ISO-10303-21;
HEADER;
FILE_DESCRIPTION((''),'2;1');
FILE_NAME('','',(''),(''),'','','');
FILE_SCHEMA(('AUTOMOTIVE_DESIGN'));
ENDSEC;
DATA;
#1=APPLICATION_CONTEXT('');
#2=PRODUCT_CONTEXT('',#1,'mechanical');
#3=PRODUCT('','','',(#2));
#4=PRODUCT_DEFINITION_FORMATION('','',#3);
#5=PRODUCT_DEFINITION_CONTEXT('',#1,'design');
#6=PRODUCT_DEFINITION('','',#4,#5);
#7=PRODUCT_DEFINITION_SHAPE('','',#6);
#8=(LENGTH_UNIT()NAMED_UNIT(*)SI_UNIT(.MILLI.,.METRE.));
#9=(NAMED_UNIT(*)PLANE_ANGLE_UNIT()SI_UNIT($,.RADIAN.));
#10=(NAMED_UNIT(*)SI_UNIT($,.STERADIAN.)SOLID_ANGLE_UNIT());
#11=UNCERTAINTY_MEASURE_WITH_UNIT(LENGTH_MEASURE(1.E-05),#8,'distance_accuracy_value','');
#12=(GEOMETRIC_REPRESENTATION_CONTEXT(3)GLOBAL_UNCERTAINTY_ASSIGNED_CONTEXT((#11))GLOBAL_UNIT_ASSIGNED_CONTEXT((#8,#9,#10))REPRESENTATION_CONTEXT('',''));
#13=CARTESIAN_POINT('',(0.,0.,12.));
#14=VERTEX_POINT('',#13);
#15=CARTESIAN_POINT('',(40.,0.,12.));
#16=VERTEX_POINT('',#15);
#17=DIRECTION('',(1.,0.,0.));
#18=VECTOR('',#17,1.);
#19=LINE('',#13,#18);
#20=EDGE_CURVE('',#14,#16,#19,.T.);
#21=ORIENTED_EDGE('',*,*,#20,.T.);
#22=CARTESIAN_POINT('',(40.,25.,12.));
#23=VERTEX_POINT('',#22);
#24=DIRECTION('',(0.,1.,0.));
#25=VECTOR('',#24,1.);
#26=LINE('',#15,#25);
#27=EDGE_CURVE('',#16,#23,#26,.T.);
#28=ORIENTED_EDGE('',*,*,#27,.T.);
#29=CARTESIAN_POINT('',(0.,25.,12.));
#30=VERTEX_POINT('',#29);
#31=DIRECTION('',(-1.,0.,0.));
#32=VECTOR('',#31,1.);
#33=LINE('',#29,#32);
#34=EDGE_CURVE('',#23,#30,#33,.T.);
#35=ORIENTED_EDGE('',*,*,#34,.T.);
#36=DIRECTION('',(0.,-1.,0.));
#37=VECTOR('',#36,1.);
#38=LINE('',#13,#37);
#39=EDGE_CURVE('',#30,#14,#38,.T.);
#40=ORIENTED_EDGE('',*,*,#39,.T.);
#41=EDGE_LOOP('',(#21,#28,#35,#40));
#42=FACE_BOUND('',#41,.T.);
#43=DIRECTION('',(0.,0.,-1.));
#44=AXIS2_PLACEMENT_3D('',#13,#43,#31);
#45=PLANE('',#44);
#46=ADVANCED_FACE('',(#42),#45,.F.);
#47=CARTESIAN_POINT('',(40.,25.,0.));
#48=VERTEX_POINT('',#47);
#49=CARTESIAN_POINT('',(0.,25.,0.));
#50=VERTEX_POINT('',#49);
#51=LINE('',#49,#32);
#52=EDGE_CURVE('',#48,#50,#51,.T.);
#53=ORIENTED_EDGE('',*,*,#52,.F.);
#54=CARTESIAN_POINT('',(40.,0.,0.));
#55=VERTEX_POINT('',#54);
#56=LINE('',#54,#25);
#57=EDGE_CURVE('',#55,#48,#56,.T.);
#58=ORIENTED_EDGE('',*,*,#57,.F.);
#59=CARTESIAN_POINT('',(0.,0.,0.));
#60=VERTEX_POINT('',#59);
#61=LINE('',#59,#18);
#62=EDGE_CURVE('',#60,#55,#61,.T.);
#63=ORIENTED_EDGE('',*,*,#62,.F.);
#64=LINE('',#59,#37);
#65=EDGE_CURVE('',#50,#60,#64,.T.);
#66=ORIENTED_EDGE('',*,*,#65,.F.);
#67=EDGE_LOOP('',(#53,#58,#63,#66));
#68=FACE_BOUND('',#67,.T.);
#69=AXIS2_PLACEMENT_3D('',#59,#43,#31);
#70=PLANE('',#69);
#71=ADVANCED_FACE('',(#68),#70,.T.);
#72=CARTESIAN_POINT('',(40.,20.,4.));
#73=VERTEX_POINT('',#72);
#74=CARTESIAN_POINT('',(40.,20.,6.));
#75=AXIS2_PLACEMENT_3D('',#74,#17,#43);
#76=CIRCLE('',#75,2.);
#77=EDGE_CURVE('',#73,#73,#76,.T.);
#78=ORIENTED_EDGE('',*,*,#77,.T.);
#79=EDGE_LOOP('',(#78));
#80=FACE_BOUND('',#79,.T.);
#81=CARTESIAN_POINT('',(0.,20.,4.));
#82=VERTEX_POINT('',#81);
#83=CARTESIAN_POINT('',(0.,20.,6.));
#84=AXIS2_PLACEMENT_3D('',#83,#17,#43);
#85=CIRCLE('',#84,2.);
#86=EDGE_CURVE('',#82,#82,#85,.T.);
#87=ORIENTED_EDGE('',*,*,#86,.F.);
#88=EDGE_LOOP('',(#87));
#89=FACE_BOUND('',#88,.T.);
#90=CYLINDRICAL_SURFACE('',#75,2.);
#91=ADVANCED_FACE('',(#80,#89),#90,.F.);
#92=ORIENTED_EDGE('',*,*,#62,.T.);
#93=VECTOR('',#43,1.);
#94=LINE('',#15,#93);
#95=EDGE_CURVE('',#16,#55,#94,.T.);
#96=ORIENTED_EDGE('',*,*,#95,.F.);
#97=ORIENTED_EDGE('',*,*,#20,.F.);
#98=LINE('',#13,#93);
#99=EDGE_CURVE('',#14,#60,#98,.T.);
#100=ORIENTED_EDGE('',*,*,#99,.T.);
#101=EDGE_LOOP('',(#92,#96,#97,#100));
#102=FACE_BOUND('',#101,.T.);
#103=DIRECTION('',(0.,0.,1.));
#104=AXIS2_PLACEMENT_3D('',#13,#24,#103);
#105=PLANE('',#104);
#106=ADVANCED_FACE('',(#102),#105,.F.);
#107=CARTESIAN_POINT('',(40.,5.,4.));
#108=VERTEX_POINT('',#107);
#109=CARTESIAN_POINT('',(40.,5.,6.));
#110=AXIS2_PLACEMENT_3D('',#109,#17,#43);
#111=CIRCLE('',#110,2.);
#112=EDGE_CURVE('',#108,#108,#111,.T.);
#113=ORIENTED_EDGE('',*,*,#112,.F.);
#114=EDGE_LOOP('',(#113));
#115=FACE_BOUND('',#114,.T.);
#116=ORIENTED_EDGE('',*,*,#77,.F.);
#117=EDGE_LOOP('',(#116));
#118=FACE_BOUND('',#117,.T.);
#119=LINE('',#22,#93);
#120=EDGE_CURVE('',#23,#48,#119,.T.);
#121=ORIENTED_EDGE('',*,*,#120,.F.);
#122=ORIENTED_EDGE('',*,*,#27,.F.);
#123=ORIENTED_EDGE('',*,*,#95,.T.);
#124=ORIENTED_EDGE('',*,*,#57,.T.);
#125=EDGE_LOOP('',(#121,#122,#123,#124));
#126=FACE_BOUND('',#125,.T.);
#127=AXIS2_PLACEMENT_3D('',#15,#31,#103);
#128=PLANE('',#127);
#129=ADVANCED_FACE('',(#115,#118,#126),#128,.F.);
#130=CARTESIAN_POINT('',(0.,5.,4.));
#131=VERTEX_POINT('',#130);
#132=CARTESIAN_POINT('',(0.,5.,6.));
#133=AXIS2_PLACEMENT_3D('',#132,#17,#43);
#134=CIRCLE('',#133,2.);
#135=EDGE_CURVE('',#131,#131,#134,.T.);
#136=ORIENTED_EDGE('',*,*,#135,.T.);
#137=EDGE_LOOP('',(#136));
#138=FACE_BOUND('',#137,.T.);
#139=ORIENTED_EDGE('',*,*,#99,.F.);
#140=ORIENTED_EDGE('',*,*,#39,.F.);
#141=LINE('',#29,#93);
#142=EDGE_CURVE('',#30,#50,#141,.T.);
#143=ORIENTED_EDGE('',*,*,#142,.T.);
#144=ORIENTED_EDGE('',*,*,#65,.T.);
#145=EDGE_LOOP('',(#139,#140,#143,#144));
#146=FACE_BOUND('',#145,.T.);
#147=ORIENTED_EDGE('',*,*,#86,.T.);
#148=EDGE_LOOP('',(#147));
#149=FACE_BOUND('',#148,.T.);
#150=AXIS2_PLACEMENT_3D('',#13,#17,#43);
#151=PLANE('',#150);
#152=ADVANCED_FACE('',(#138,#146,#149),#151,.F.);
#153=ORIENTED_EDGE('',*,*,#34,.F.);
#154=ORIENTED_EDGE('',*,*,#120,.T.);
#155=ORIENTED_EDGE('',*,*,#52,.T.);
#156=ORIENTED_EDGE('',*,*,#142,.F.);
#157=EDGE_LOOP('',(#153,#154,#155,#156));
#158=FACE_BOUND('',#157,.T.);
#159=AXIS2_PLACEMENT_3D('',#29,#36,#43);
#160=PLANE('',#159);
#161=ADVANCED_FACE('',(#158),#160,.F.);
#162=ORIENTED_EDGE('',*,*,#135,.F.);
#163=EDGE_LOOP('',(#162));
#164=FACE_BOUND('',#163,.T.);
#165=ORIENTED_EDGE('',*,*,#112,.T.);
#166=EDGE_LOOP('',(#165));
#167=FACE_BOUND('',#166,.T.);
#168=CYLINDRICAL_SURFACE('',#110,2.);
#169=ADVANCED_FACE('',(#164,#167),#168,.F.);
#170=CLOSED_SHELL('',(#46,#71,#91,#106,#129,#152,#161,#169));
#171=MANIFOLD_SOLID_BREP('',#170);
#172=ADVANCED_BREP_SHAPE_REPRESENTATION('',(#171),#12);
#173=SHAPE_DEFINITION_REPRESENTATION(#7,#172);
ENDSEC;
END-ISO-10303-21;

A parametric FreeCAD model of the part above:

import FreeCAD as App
import Part
import Sketcher

doc = App.newDocument("Part")
params = doc.addObject("Spreadsheet::Sheet", "Params")
for row, (alias, value) in enumerate([
    ("sketch1_width", "40 mm"),
    ("sketch1_height", "25 mm"),
    ("pad1_length", "12 mm"),
    ("sketch2_diameter", "4 mm"),
    ("hole_diameter", "4 mm"),
    ("hole_depth", "40 mm"),
], start=1):
    params.set(f"A{row}", alias)
    params.set(f"B{row}", "=" + value)
    params.setAlias(f"B{row}", alias)

body = doc.addObject("PartDesign::Body", "Body")

# Sketch on XY plane
sketch1 = body.newObject("Sketcher::SketchObject", "Sketch")
sketch1.AttachmentSupport = (doc.getObject("XY_Plane"), [""])
sketch1.MapMode = "FlatFace"
sketch1.addGeometry([
    Part.LineSegment(App.Vector(0, 25, 0), App.Vector(0, 0, 0)),
    Part.LineSegment(App.Vector(0, 0, 0), App.Vector(40, 0, 0)),
    Part.LineSegment(App.Vector(40, 0, 0), App.Vector(40, 25, 0)),
    Part.LineSegment(App.Vector(40, 25, 0), App.Vector(0, 25, 0)),
], False)
sketch1.addConstraint([
    Sketcher.Constraint("Coincident", 0, 2, 1, 1),
    Sketcher.Constraint("Coincident", 1, 2, 2, 1),
    Sketcher.Constraint("Coincident", 2, 2, 3, 1),
    Sketcher.Constraint("Coincident", 3, 2, 0, 1),
    Sketcher.Constraint("Vertical", 0),
    Sketcher.Constraint("Horizontal", 1),
    Sketcher.Constraint("Vertical", 2),
    Sketcher.Constraint("Horizontal", 3),
    Sketcher.Constraint("Coincident", 0, 2, -1, 1),
    Sketcher.Constraint("DistanceX", 1, 1, 1, 2, 40.0),
    Sketcher.Constraint("DistanceY", 0, 2, 0, 1, 25.0),
])
sketch1.setExpression("Constraints[9]", "Params.sketch1_width")
sketch1.setExpression("Constraints[10]", "Params.sketch1_height")
pad1 = body.newObject("PartDesign::Pad", "Pad")
pad1.Profile = sketch1
pad1.setExpression("Length", "Params.pad1_length")

# Sketch on YZ plane
sketch2 = body.newObject("Sketcher::SketchObject", "Sketch001")
sketch2.AttachmentSupport = (doc.getObject("YZ_Plane"), [""])
sketch2.MapMode = "FlatFace"
sketch2.AttachmentOffset = App.Placement(App.Vector(0, 0, 40), App.Rotation())
sketch2.addGeometry([
    Part.Circle(App.Vector(20, 6, 0), App.Vector(0, 0, 1), 2),
    Part.Circle(App.Vector(5, 6, 0), App.Vector(0, 0, 1), 2),
], False)
sketch2.addConstraint([
    Sketcher.Constraint("Equal", 0, 1),
    Sketcher.Constraint("Horizontal", 0, 3, 1, 3),
    Sketcher.Constraint("Diameter", 0, 4.0),
    Sketcher.Constraint("DistanceX", -1, 1, 0, 3, 20.0),
    Sketcher.Constraint("DistanceY", -1, 1, 0, 3, 6.0),
    Sketcher.Constraint("DistanceX", -1, 1, 1, 3, 5.0),
])
sketch2.setExpression("Constraints[2]", "Params.sketch2_diameter")
doc.recompute()
hole = body.newObject("PartDesign::Hole", "Hole")
hole.Profile = sketch2
hole.ThreadType = "None"
hole.setExpression("Diameter", "Params.hole_diameter")
hole.DepthType = "Dimension"
hole.setExpression("Depth", "Params.hole_depth")
hole.DrillPoint = "Flat"

doc.recompute()
